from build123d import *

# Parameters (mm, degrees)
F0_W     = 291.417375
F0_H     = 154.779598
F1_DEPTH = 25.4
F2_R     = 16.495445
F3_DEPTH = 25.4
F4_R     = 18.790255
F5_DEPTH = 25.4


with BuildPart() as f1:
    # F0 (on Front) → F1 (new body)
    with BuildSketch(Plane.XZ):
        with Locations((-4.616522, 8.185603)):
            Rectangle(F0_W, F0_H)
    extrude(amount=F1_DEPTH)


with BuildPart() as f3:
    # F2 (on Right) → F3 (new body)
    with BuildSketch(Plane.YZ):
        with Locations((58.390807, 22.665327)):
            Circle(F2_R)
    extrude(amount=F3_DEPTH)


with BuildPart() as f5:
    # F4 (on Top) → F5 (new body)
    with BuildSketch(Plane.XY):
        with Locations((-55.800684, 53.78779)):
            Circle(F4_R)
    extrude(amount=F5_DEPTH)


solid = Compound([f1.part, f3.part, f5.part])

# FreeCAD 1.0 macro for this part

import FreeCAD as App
import Part
import Sketcher

V = App.Vector


def add_polygon(sketch, points):
    """Adds a closed chain of lines whose ends are joined by coincident constraints."""
    first, n = sketch.GeometryCount, len(points)
    for a, b in zip(points, points[1:] + points[:1]):
        sketch.addGeometry(Part.LineSegment(App.Vector(*a, 0), App.Vector(*b, 0)), False)
    for i in range(n):
        sketch.addConstraint(Sketcher.Constraint("Coincident", first + i, 2, first + (i + 1) % n, 1))

doc = App.newDocument("Part")
params = doc.addObject("Spreadsheet::Sheet", "Params")
for row, (alias, value) in enumerate([
    ("pad1_length", "1 in"),
    ("pad2_length", "1 in"),
    ("pad3_length", "1 in"),
], start=1):
    params.set(f"A{row}", alias)
    params.set(f"B{row}", "=" + value)
    params.setAlias(f"B{row}", alias)

body = doc.addObject("PartDesign::Body", "Body")

sketch1 = doc.addObject("Sketcher::SketchObject", "Sketch")
body.addObject(sketch1)
sketch1.AttachmentSupport = (doc.XZ_Plane, [""])
sketch1.MapMode = "FlatFace"
add_polygon(sketch1, [(-150.325209, 85.575402), (-150.325209, -69.204196), (141.092165, -69.204196), (141.092165, 85.575402)])
sketch1.addConstraint([
    Sketcher.Constraint("Vertical", 0),
    Sketcher.Constraint("Horizontal", 1),
    Sketcher.Constraint("Vertical", 2),
    Sketcher.Constraint("Horizontal", 3),
    Sketcher.Constraint("DistanceY", 0, 2, 0, 1, 154.779598),
    Sketcher.Constraint("DistanceY", -1, 1, 2, 2, 85.575402),
    Sketcher.Constraint("DistanceX", 1, 1, 1, 2, 291.417375),
    Sketcher.Constraint("DistanceX", 0, 2, -1, 1, 150.325209),
])
pad1 = doc.addObject("PartDesign::Pad", "Pad")
body.addObject(pad1)
pad1.Profile = sketch1
pad1.setExpression("Length", "Params.pad1_length")
body2 = doc.addObject("PartDesign::Body", "Body001")

sketch2 = doc.addObject("Sketcher::SketchObject", "Sketch001")
body2.addObject(sketch2)
sketch2.AttachmentSupport = (doc.getObject("YZ_Plane001"), [""])
sketch2.MapMode = "FlatFace"
sketch2.addGeometry(Part.Circle(V(58.390807, 22.665327, 0), V(0, 0, 1), 16.495445), False)
sketch2.addConstraint([
    Sketcher.Constraint("Diameter", 0, 32.99089),
    Sketcher.Constraint("DistanceX", -1, 1, 0, 3, 58.390807),
    Sketcher.Constraint("DistanceY", -1, 1, 0, 3, 22.665327),
])
pad2 = doc.addObject("PartDesign::Pad", "Pad001")
body2.addObject(pad2)
pad2.Profile = sketch2
pad2.setExpression("Length", "Params.pad2_length")
body3 = doc.addObject("PartDesign::Body", "Body002")

sketch3 = doc.addObject("Sketcher::SketchObject", "Sketch002")
body3.addObject(sketch3)
sketch3.AttachmentSupport = (doc.getObject("XY_Plane002"), [""])
sketch3.MapMode = "FlatFace"
sketch3.addGeometry(Part.Circle(V(-55.800684, 53.78779, 0), V(0, 0, 1), 18.790255), False)
sketch3.addConstraint([
    Sketcher.Constraint("Diameter", 0, 37.58051),
    Sketcher.Constraint("DistanceY", -1, 1, 0, 3, 53.78779),
    Sketcher.Constraint("DistanceX", 0, 3, -1, 1, 55.800684),
])
pad3 = doc.addObject("PartDesign::Pad", "Pad002")
body3.addObject(pad3)
pad3.Profile = sketch3
pad3.setExpression("Length", "Params.pad3_length")

doc.recompute()
